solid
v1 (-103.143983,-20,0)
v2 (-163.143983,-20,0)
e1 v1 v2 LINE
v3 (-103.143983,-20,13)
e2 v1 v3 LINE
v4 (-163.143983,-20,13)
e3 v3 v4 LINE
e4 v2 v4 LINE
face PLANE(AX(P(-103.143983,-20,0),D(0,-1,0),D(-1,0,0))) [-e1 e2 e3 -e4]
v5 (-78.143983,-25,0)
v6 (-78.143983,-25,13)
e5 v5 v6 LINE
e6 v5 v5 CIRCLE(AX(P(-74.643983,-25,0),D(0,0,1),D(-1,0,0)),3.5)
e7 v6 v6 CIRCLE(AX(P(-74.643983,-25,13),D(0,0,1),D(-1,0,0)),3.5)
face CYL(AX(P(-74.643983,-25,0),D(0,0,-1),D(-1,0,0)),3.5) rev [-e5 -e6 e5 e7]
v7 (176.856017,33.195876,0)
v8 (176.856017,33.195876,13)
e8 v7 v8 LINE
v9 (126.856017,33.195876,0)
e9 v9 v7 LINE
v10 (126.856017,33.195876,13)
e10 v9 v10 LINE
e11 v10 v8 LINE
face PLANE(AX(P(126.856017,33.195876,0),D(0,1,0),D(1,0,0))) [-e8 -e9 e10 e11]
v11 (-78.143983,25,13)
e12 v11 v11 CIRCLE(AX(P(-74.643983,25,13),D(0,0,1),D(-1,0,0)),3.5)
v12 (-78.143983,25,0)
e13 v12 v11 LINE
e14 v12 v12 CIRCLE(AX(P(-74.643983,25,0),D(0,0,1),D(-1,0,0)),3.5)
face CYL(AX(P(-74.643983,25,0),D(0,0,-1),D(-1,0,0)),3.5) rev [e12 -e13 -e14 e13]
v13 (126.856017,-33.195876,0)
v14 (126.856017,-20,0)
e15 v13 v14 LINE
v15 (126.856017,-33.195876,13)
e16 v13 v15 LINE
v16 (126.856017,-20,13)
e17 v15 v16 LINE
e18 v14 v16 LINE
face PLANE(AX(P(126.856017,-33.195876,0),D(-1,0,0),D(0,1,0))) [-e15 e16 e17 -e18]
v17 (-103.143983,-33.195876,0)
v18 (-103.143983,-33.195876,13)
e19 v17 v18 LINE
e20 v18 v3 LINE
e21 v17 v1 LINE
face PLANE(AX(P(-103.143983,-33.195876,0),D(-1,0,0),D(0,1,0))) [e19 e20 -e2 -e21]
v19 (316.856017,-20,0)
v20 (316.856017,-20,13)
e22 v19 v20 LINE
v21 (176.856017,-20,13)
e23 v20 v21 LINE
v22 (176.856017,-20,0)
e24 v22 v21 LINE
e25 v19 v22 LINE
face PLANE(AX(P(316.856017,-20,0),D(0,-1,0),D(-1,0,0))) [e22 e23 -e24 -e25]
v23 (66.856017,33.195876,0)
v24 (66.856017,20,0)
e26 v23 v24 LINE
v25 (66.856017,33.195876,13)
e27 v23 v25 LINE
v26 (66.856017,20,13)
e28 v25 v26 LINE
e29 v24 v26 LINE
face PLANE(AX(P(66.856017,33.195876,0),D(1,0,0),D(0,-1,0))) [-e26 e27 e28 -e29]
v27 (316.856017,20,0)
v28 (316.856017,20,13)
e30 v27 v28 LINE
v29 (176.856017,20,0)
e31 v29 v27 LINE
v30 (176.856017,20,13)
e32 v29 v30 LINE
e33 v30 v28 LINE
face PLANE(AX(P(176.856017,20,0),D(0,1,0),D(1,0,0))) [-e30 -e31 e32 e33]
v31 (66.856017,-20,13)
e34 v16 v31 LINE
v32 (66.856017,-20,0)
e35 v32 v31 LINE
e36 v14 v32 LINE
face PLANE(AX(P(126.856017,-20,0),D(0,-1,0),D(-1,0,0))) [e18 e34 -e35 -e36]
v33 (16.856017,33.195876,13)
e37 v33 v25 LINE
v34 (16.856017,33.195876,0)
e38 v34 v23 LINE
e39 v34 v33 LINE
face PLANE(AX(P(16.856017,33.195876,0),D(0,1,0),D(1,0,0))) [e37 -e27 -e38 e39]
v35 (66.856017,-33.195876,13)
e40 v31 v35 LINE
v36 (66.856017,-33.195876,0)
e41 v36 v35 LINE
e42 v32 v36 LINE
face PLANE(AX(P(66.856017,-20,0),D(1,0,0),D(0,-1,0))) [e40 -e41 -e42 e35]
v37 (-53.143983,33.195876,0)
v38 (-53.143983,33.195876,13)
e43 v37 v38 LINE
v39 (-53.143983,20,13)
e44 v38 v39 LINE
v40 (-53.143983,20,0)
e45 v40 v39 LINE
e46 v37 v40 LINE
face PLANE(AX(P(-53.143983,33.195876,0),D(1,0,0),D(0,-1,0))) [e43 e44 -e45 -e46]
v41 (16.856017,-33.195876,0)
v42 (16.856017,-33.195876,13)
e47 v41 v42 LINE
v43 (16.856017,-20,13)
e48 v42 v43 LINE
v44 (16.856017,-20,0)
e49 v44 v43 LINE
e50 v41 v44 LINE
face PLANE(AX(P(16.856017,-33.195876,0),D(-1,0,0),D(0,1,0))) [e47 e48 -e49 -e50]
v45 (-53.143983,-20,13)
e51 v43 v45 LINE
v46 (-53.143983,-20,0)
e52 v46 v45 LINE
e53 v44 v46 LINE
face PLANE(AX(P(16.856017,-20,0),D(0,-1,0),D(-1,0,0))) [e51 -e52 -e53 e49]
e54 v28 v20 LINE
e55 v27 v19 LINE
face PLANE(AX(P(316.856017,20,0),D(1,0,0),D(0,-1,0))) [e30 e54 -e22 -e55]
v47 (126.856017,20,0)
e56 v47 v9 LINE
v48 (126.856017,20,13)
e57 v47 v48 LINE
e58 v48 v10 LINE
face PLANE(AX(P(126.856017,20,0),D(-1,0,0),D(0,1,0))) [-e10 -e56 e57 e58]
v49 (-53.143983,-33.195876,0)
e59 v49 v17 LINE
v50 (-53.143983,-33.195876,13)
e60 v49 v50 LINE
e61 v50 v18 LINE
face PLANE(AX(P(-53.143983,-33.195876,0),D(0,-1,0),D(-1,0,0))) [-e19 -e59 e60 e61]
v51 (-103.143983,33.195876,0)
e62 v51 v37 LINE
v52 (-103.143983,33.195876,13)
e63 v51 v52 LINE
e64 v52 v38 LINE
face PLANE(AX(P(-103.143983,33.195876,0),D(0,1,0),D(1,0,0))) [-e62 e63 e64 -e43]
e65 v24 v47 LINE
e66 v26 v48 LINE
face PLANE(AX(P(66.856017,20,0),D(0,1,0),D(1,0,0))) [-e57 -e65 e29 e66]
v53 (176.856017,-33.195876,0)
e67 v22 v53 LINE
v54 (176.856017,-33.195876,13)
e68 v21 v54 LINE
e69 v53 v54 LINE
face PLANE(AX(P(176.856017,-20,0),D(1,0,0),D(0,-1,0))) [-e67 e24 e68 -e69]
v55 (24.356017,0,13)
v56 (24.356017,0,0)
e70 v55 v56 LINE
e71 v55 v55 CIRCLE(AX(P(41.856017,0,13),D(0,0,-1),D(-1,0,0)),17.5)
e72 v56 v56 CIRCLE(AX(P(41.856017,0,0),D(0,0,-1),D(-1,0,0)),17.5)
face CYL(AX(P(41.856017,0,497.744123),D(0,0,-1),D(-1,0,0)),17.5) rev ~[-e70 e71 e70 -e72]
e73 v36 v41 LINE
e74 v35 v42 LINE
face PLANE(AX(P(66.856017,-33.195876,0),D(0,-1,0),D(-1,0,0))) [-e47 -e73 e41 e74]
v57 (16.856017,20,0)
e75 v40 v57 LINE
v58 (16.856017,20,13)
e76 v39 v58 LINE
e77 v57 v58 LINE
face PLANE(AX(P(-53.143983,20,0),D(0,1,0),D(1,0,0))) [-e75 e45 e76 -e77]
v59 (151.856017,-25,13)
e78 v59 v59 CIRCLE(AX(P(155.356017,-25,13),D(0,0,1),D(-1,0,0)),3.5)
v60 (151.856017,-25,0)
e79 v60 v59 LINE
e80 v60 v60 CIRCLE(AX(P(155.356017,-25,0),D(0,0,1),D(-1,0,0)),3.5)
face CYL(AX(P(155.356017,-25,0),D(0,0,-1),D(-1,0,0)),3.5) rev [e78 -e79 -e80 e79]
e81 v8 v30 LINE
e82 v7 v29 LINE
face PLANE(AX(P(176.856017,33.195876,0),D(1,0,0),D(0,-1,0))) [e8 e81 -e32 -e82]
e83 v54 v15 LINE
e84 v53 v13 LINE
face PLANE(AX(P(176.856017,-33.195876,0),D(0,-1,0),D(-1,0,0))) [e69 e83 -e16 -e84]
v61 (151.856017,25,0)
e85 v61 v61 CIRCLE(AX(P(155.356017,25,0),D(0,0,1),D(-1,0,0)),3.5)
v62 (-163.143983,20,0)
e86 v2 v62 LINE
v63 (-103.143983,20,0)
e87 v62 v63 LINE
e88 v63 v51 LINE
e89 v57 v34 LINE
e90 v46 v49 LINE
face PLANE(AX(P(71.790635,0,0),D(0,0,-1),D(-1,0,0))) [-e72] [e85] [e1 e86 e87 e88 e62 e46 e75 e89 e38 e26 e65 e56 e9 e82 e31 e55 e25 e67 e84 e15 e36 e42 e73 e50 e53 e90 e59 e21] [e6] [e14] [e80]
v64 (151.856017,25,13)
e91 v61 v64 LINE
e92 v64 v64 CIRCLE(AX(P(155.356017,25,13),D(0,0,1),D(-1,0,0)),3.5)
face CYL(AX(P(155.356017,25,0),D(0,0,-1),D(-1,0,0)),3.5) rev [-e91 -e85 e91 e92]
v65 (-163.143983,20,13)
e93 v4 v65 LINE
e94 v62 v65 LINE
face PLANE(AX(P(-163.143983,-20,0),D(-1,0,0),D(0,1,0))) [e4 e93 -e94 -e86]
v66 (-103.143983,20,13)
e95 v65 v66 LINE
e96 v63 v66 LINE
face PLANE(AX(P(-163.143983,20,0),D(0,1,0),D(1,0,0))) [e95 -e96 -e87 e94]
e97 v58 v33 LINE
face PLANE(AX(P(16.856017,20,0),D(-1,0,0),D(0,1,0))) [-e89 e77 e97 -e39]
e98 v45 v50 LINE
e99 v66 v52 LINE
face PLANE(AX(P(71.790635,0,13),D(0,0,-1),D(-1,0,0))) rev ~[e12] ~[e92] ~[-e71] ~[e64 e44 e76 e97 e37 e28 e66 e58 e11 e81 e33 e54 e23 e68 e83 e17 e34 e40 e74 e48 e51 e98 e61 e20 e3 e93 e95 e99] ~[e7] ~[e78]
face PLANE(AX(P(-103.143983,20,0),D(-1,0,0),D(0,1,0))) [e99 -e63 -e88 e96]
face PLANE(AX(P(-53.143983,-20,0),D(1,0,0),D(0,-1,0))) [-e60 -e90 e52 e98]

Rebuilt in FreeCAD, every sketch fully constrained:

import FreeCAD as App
import Part
import Sketcher
from FreeCAD import Vector


def add_polygon(sketch, points):
    """Adds a closed chain of lines whose ends are joined by coincident constraints."""
    first, n = sketch.GeometryCount, len(points)
    for a, b in zip(points, points[1:] + points[:1]):
        sketch.addGeometry(Part.LineSegment(App.Vector(*a, 0), App.Vector(*b, 0)), False)
    for i in range(n):
        sketch.addConstraint(Sketcher.Constraint("Coincident", first + i, 2, first + (i + 1) % n, 1))

doc = App.newDocument("Part")
params = doc.addObject("Spreadsheet::Sheet", "Params")
for row, (alias, value) in enumerate([
    ("sketch1_diameter", "7 mm"),
    ("sketch1_width", "50 mm"),
    ("sketch1_width2", "60 mm"),
    ("sketch1_width3", "70 mm"),
    ("sketch1_width4", "140 mm"),
    ("pad1_length", "13 mm"),
    ("sketch2_diameter", "35 mm"),
    ("hole_diameter", "35 mm"),
], start=1):
    params.set(f"A{row}", alias)
    params.set(f"B{row}", "=" + value)
    params.setAlias(f"B{row}", alias)

body = doc.addObject("PartDesign::Body", "Body")

# Sketch on XY plane
sketch1 = body.newObject("Sketcher::SketchObject", "Sketch")
sketch1.AttachmentSupport = (doc.getObject("XY_Plane"), [""])
sketch1.MapMode = "FlatFace"
add_polygon(sketch1, [(-53.1, 33.2), (-103.1, 33.2), (-103.1, 20), (-163.1, 20), (-163.1, -20), (-103.1, -20), (-103.1, -33.2), (-53.1, -33.2), (-53.1, -20), (16.9, -20), (16.9, -33.2), (66.9, -33.2), (66.9, -20), (126.9, -20), (126.9, -33.2), (176.9, -33.2), (176.9, -20), (316.9, -20), (316.9, 20), (176.9, 20), (176.9, 33.2), (126.9, 33.2), (126.9, 20), (66.9, 20), (66.9, 33.2), (16.9, 33.2), (16.9, 20), (-53.1, 20)])  # lines 0-27
sketch1.addGeometry(Part.Circle(Vector(155.4, -25, 0), Vector(0, 0, 1), 3.5), False)  # 28
sketch1.addGeometry(Part.Circle(Vector(-74.6, -25, 0), Vector(0, 0, 1), 3.5), False)  # 29
sketch1.addGeometry(Part.Circle(Vector(155.4, 25, 0), Vector(0, 0, 1), 3.5), False)  # 30
sketch1.addGeometry(Part.Circle(Vector(-74.6, 25, 0), Vector(0, 0, 1), 3.5), False)  # 31
sketch1.addConstraint([
    Sketcher.Constraint("Horizontal", 0),
    Sketcher.Constraint("Vertical", 1),
    Sketcher.Constraint("Horizontal", 2),
    Sketcher.Constraint("Vertical", 3),
    Sketcher.Constraint("Horizontal", 4),
    Sketcher.Constraint("Vertical", 5),
    Sketcher.Constraint("Horizontal", 6),
    Sketcher.Constraint("Vertical", 7),
    Sketcher.Constraint("Horizontal", 8),
    Sketcher.Constraint("Vertical", 9),
    Sketcher.Constraint("Horizontal", 10),
    Sketcher.Constraint("Vertical", 11),
    Sketcher.Constraint("Horizontal", 12),
    Sketcher.Constraint("Vertical", 13),
    Sketcher.Constraint("Horizontal", 14),
    Sketcher.Constraint("Vertical", 15),
    Sketcher.Constraint("Horizontal", 16),
    Sketcher.Constraint("Vertical", 17),
    Sketcher.Constraint("Horizontal", 18),
    Sketcher.Constraint("Vertical", 19),
    Sketcher.Constraint("Horizontal", 20),
    Sketcher.Constraint("Vertical", 21),
    Sketcher.Constraint("Horizontal", 22),
    Sketcher.Constraint("Vertical", 23),
    Sketcher.Constraint("Horizontal", 24),
    Sketcher.Constraint("Vertical", 25),
    Sketcher.Constraint("Horizontal", 26),
    Sketcher.Constraint("Vertical", 27),
    Sketcher.Constraint("Equal", 28, 29),
    Sketcher.Constraint("Equal", 29, 30),
    Sketcher.Constraint("Equal", 30, 31),
    Sketcher.Constraint("Symmetric", 28, 3, 30, 3, -1),
    Sketcher.Constraint("Symmetric", 29, 3, 31, 3, -1),
    Sketcher.Constraint("Symmetric", 1, 2, 4, 2, -1),
    Sketcher.Constraint("Symmetric", 15, 2, 18, 2, -1),
    Sketcher.Constraint("Symmetric", 13, 2, 20, 2, -1),
    Sketcher.Constraint("Symmetric", 11, 2, 22, 2, -1),
    Sketcher.Constraint("Symmetric", 9, 2, 24, 2, -1),
    Sketcher.Constraint("Symmetric", 7, 2, 26, 2, -1),
    Sketcher.Constraint("Horizontal", 28, 3, 29, 3),
    Sketcher.Constraint("Horizontal", 4, 2, 7, 2),
    Sketcher.Constraint("Horizontal", 6, 2, 9, 2),
    Sketcher.Constraint("Horizontal", 8, 2, 11, 2),
    Sketcher.Constraint("Horizontal", 10, 2, 13, 2),
    Sketcher.Constraint("Horizontal", 12, 2, 15, 2),
    Sketcher.Constraint("Horizontal", 0, 2, 19, 2),
    Sketcher.Constraint("Equal", 6, 10),
    Sketcher.Constraint("Equal", 4, 12),
    Sketcher.Constraint("Equal", 10, 14),
    Sketcher.Constraint("Diameter", 28, 7.0),
    Sketcher.Constraint("DistanceX", 0, 2, 0, 1, 50.0),
    Sketcher.Constraint("DistanceX", 2, 2, 2, 1, 60.0),
    Sketcher.Constraint("DistanceX", 8, 1, 8, 2, 70.0),
    Sketcher.Constraint("DistanceX", 16, 1, 16, 2, 140.0),
    Sketcher.Constraint("DistanceY", 3, 2, 3, 1, 40.0),
    Sketcher.Constraint("DistanceY", 28, 3, -1, 1, 25.0),
    Sketcher.Constraint("DistanceX", 29, 3, 28, 3, 230.0),
    Sketcher.Constraint("DistanceX", 0, 2, 31, 3, 28.5),
    Sketcher.Constraint("DistanceY", 1, 2, 1, 1, 13.195876),
    Sketcher.Constraint("DistanceX", -1, 1, 28, 3, 155.356017),
])
sketch1.setExpression("Constraints[77]", "Params.sketch1_diameter")
sketch1.setExpression("Constraints[78]", "Params.sketch1_width")
sketch1.setExpression("Constraints[79]", "Params.sketch1_width2")
sketch1.setExpression("Constraints[80]", "Params.sketch1_width3")
sketch1.setExpression("Constraints[81]", "Params.sketch1_width4")
pad1 = body.newObject("PartDesign::Pad", "Pad")
pad1.Profile = sketch1
pad1.setExpression("Length", "Params.pad1_length")

# Sketch on XY plane
sketch2 = body.newObject("Sketcher::SketchObject", "Sketch001")
sketch2.AttachmentSupport = (doc.getObject("XY_Plane"), [""])
sketch2.MapMode = "FlatFace"
sketch2.AttachmentOffset = App.Placement(Vector(0, 0, 13), App.Rotation())
sketch2.addGeometry(Part.Circle(Vector(42, 0, 0), Vector(0, 0, 1), 18), False)
sketch2.addConstraint([
    Sketcher.Constraint("PointOnObject", 0, 3, -1),
    Sketcher.Constraint("Diameter", 0, 35.0),
    Sketcher.Constraint("DistanceX", -1, 1, 0, 3, 41.856017),
])
sketch2.setExpression("Constraints[1]", "Params.sketch2_diameter")
doc.recompute()
hole = body.newObject("PartDesign::Hole", "Hole")
hole.Profile = sketch2
hole.ThreadType = "None"
hole.setExpression("Diameter", "Params.hole_diameter")
hole.DepthType = "ThroughAll"

doc.recompute()
